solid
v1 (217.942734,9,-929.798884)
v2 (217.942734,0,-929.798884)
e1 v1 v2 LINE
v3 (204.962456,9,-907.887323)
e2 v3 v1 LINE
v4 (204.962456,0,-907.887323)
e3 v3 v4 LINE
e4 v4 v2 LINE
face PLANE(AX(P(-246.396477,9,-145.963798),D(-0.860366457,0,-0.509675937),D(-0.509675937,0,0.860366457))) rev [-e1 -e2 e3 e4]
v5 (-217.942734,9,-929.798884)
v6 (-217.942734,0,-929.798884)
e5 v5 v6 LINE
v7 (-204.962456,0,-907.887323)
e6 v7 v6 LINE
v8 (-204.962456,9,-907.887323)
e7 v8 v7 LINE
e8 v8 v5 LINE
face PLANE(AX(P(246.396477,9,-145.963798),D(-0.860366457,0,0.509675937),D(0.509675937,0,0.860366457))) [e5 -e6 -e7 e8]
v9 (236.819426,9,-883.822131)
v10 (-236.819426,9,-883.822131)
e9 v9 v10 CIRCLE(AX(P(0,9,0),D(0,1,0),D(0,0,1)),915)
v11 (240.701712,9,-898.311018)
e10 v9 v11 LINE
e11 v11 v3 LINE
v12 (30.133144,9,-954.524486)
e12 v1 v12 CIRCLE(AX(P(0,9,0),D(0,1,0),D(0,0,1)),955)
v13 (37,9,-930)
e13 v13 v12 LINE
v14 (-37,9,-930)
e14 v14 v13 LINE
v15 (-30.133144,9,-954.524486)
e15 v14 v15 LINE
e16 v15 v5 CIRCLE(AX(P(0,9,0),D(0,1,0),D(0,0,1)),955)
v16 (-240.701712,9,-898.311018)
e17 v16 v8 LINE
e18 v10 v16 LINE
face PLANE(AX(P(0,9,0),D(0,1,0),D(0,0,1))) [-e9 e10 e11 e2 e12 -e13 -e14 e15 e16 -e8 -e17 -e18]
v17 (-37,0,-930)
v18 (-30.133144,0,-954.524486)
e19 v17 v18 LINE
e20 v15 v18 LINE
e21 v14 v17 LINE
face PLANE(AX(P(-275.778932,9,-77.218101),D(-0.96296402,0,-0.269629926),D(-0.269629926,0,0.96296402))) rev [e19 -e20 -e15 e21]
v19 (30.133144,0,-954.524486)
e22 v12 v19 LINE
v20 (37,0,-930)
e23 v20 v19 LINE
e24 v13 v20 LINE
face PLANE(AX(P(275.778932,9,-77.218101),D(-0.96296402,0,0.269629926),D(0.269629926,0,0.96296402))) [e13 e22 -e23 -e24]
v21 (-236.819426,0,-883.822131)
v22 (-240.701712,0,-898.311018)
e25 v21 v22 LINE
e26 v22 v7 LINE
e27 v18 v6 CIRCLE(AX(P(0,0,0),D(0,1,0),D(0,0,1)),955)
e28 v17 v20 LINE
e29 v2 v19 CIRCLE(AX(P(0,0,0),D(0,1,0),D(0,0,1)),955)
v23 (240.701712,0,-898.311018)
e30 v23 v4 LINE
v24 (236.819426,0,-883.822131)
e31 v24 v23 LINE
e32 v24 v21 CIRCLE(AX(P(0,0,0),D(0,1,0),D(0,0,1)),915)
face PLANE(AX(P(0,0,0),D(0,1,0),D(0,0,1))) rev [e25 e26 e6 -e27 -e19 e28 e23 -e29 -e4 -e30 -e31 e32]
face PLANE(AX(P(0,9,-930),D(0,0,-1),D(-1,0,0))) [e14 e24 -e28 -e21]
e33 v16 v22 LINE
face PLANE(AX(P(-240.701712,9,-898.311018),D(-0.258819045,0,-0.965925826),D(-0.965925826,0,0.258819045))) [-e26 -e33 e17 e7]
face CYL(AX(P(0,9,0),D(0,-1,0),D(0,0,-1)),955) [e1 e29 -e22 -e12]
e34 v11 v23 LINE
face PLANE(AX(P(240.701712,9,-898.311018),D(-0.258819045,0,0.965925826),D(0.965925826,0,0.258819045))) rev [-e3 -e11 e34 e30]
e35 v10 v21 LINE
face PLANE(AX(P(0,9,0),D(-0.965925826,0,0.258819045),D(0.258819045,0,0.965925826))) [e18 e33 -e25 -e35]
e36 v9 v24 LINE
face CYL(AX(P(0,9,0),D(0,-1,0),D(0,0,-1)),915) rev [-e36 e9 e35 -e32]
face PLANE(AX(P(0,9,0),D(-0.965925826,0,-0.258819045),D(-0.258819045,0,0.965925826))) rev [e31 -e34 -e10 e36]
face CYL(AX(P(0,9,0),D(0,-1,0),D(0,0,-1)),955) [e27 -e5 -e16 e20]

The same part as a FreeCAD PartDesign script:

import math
import FreeCAD as App
import Part
import Sketcher
Q = App.Units.Quantity

doc = App.newDocument("Part")
params = doc.addObject("Spreadsheet::Sheet", "Params")
for row, (alias, value) in enumerate([
    ("sketch1_radius", "915 mm"),
    ("sketch1_radius2", "955 mm"),
    ("sketch1_width", "74 mm"),
    ("sketch1_length", "15 mm"),
    ("sketch1_length2", "37 mm"),
    ("pad1_length", "9 mm"),
], start=1):
    params.set(f"A{row}", alias)
    params.set(f"B{row}", "=" + value)
    params.setAlias(f"B{row}", alias)

body = doc.addObject("PartDesign::Body", "Body")

# Sketch on XZ plane
sketch1 = body.newObject("Sketcher::SketchObject", "Sketch")
sketch1.AttachmentSupport = (doc.getObject("XZ_Plane"), [""])
sketch1.MapMode = "FlatFace"
sketch1.addGeometry([
    Part.LineSegment(App.Vector(-241, -898, 0), App.Vector(-237, -884, 0)),  # 0
    Part.ArcOfCircle(Part.Circle(App.Vector(0, 0, 0), App.Vector(0, 0, 1), 915), math.radians(-105), math.radians(-75)),  # 1
    Part.LineSegment(App.Vector(237, -884, 0), App.Vector(241, -898, 0)),  # 2
    Part.LineSegment(App.Vector(241, -898, 0), App.Vector(205, -908, 0)),  # 3
    Part.LineSegment(App.Vector(205, -908, 0), App.Vector(218, -930, 0)),  # 4
    Part.ArcOfCircle(Part.Circle(App.Vector(0, 0, 0), App.Vector(0, 0, 1), 955), math.radians(-88.19), math.radians(-76.81)),  # 5
    Part.LineSegment(App.Vector(30, -955, 0), App.Vector(37, -930, 0)),  # 6
    Part.LineSegment(App.Vector(37, -930, 0), App.Vector(-37, -930, 0)),  # 7
    Part.LineSegment(App.Vector(-37, -930, 0), App.Vector(-30, -955, 0)),  # 8
    Part.ArcOfCircle(Part.Circle(App.Vector(0, 0, 0), App.Vector(0, 0, 1), 955), math.radians(-103.19), math.radians(-91.81)),  # 9
    Part.LineSegment(App.Vector(-218, -930, 0), App.Vector(-205, -908, 0)),  # 10
    Part.LineSegment(App.Vector(-205, -908, 0), App.Vector(-241, -898, 0)),  # 11
], False)
sketch1.addConstraint([
    Sketcher.Constraint("Coincident", 0, 2, 1, 1),
    Sketcher.Constraint("Coincident", 1, 2, 2, 1),
    Sketcher.Constraint("Coincident", 2, 2, 3, 1),
    Sketcher.Constraint("Coincident", 3, 2, 4, 1),
    Sketcher.Constraint("Coincident", 4, 2, 5, 2),
    Sketcher.Constraint("Coincident", 5, 1, 6, 1),
    Sketcher.Constraint("Coincident", 6, 2, 7, 1),
    Sketcher.Constraint("Coincident", 7, 2, 8, 1),
    Sketcher.Constraint("Coincident", 8, 2, 9, 2),
    Sketcher.Constraint("Coincident", 9, 1, 10, 1),
    Sketcher.Constraint("Coincident", 10, 2, 11, 1),
    Sketcher.Constraint("Coincident", 11, 2, 0, 1),
    Sketcher.Constraint("Horizontal", 7),
    Sketcher.Constraint("Coincident", 1, 3, -1, 1),
    Sketcher.Constraint("Coincident", 5, 3, -1, 1),
    Sketcher.Constraint("Coincident", 9, 3, -1, 1),
    Sketcher.Constraint("Equal", 5, 9),
    Sketcher.Constraint("Symmetric", 3, 2, 10, 2, -2),
    Sketcher.Constraint("Symmetric", 2, 2, 11, 2, -2),
    Sketcher.Constraint("Perpendicular", 2, 3),
    Sketcher.Constraint("Perpendicular", 0, 11),
    Sketcher.Constraint("Equal", 4, 6),
    Sketcher.Constraint("Equal", 6, 8),
    Sketcher.Constraint("Equal", 8, 10),
    Sketcher.Constraint("Radius", 1, Q("915 mm")),
    Sketcher.Constraint("Radius", 5, Q("955 mm")),
    Sketcher.Constraint("DistanceX", 7, 2, 7, 1, Q("74 mm")),
    Sketcher.Constraint("Angle", 0, Q("75 deg")),
    Sketcher.Constraint("Distance", 0, Q("15 mm")),
    Sketcher.Constraint("Distance", 3, Q("37 mm")),
    Sketcher.Constraint("DistanceX", -1, 1, 6, 2, Q("37 mm")),
    Sketcher.Constraint("DistanceY", 6, 2, -1, 1, Q("930 mm")),
    Sketcher.Constraint("DistanceY", 5, 1, 4, 2, Q("24.725602 mm")),
    Sketcher.Constraint("DistanceX", 8, 2, 3, 2, Q("235.0956 mm")),
])
sketch1.setExpression("Constraints[24]", "Params.sketch1_radius")
sketch1.setExpression("Constraints[25]", "Params.sketch1_radius2")
sketch1.setExpression("Constraints[26]", "Params.sketch1_width")
sketch1.setExpression("Constraints[28]", "Params.sketch1_length")
sketch1.setExpression("Constraints[29]", "Params.sketch1_length2")
pad1 = body.newObject("PartDesign::Pad", "Pad")
pad1.Profile = sketch1
pad1.setExpression("Length", "Params.pad1_length")
pad1.Reversed = True

doc.recompute()
